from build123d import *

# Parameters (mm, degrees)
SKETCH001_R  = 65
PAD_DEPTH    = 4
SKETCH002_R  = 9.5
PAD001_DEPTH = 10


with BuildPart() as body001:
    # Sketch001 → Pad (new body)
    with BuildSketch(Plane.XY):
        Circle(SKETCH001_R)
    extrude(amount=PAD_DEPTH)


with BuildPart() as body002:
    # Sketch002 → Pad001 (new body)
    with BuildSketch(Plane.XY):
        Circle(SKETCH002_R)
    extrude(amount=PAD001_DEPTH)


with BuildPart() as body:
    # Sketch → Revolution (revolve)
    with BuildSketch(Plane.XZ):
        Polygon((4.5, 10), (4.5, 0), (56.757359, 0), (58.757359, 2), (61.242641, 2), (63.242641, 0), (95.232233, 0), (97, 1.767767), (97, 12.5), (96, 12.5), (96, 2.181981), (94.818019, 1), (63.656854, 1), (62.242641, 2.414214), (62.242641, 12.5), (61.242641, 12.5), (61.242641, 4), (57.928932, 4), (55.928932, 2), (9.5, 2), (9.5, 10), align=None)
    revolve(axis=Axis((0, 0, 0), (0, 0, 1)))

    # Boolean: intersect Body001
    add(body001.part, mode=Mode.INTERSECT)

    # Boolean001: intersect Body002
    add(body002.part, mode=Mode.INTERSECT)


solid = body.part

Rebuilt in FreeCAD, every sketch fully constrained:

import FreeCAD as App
import Part
import Sketcher

V = App.Vector
Q = App.Units.Quantity

doc = App.newDocument("Part")
params = doc.addObject("Spreadsheet::Sheet", "Params")
for row, (alias, value) in enumerate([
    ("sketch1_diameter", "130 mm"),
    ("pad1_length", "4 mm"),
    ("sketch2_diameter", "19 mm"),
    ("pad2_length", "10 mm"),
    ("sketch3_width", "1 mm"),
    ("sketch3_width2", "5 mm"),
    ("sketch3_height", "10 mm"),
    ("sketch3_height2", "8 mm"),
    ("sketch3_length", "2 mm"),
    ("revolution_angle", "360 deg"),
], start=1):
    params.set(f"A{row}", alias)
    params.set(f"B{row}", "=" + value)
    params.setAlias(f"B{row}", alias)

body = doc.addObject("PartDesign::Body", "Body")

# Sketch on XY plane
sketch1 = body.newObject("Sketcher::SketchObject", "Sketch")
sketch1.AttachmentSupport = (doc.getObject("XY_Plane"), [""])
sketch1.MapMode = "FlatFace"
sketch1.addGeometry(Part.Circle(V(0, 0, 0), V(0, 0, 1), 65), False)
sketch1.addConstraint(Sketcher.Constraint("Coincident", 0, 3, -1, 1))
sketch1.addConstraint(Sketcher.Constraint("Diameter", 0, Q("130 mm")))
sketch1.setExpression("Constraints[1]", "Params.sketch1_diameter")
pad1 = body.newObject("PartDesign::Pad", "Pad")
pad1.Profile = sketch1
pad1.setExpression("Length", "Params.pad1_length")
body2 = doc.addObject("PartDesign::Body", "Body001")

# Sketch on XY plane
sketch2 = body2.newObject("Sketcher::SketchObject", "Sketch001")
sketch2.AttachmentSupport = (doc.getObject("XY_Plane001"), [""])
sketch2.MapMode = "FlatFace"
sketch2.addGeometry(Part.Circle(V(0, 0, 0), V(0, 0, 1), 9.5), False)
sketch2.addConstraint(Sketcher.Constraint("Coincident", 0, 3, -1, 1))
sketch2.addConstraint(Sketcher.Constraint("Diameter", 0, Q("19 mm")))
sketch2.setExpression("Constraints[1]", "Params.sketch2_diameter")
pad2 = body2.newObject("PartDesign::Pad", "Pad001")
pad2.Profile = sketch2
pad2.setExpression("Length", "Params.pad2_length")
body3 = doc.addObject("PartDesign::Body", "Body002")

# Sketch on XZ plane
sketch3 = body3.newObject("Sketcher::SketchObject", "Sketch002")
sketch3.AttachmentSupport = (doc.getObject("XZ_Plane002"), [""])
sketch3.MapMode = "FlatFace"
sketch3.addGeometry(Part.LineSegment(V(4.5, 10, 0), V(4.5, 0, 0)), False)
sketch3.addGeometry(Part.LineSegment(V(4.5, 0, 0), V(56.757359, 0, 0)), False)
sketch3.addGeometry(Part.LineSegment(V(56.757359, 0, 0), V(58.757359, 2, 0)), False)
sketch3.addGeometry(Part.LineSegment(V(58.757359, 2, 0), V(61.242641, 2, 0)), False)
sketch3.addGeometry(Part.LineSegment(V(61.242641, 2, 0), V(63.242641, 0, 0)), False)
sketch3.addGeometry(Part.LineSegment(V(63.242641, 0, 0), V(95.232233, 0, 0)), False)
sketch3.addGeometry(Part.LineSegment(V(95.232233, 0, 0), V(97, 1.767767, 0)), False)
sketch3.addGeometry(Part.LineSegment(V(97, 1.767767, 0), V(97, 12.5, 0)), False)
sketch3.addGeometry(Part.LineSegment(V(97, 12.5, 0), V(96, 12.5, 0)), False)
sketch3.addGeometry(Part.LineSegment(V(96, 12.5, 0), V(96, 2.181981, 0)), False)
sketch3.addGeometry(Part.LineSegment(V(96, 2.181981, 0), V(94.818019, 1, 0)), False)
sketch3.addGeometry(Part.LineSegment(V(94.818019, 1, 0), V(63.656854, 1, 0)), False)
sketch3.addGeometry(Part.LineSegment(V(63.656854, 1, 0), V(62.242641, 2.414214, 0)), False)
sketch3.addGeometry(Part.LineSegment(V(62.242641, 2.414214, 0), V(62.242641, 12.5, 0)), False)
sketch3.addGeometry(Part.LineSegment(V(62.242641, 12.5, 0), V(61.242641, 12.5, 0)), False)
sketch3.addGeometry(Part.LineSegment(V(61.242641, 12.5, 0), V(61.242641, 4, 0)), False)
sketch3.addGeometry(Part.LineSegment(V(61.242641, 4, 0), V(57.928932, 4, 0)), False)
sketch3.addGeometry(Part.LineSegment(V(57.928932, 4, 0), V(55.928932, 2, 0)), False)
sketch3.addGeometry(Part.LineSegment(V(55.928932, 2, 0), V(9.5, 2, 0)), False)
sketch3.addGeometry(Part.LineSegment(V(9.5, 2, 0), V(9.5, 10, 0)), False)
sketch3.addGeometry(Part.LineSegment(V(9.5, 10, 0), V(4.5, 10, 0)), False)
sketch3.addConstraint(Sketcher.Constraint("Coincident", 0, 2, 1, 1))
sketch3.addConstraint(Sketcher.Constraint("Coincident", 1, 2, 2, 1))
sketch3.addConstraint(Sketcher.Constraint("Coincident", 2, 2, 3, 1))
sketch3.addConstraint(Sketcher.Constraint("Coincident", 3, 2, 4, 1))
sketch3.addConstraint(Sketcher.Constraint("Coincident", 4, 2, 5, 1))
sketch3.addConstraint(Sketcher.Constraint("Coincident", 5, 2, 6, 1))
sketch3.addConstraint(Sketcher.Constraint("Coincident", 6, 2, 7, 1))
sketch3.addConstraint(Sketcher.Constraint("Coincident", 7, 2, 8, 1))
sketch3.addConstraint(Sketcher.Constraint("Coincident", 8, 2, 9, 1))
sketch3.addConstraint(Sketcher.Constraint("Coincident", 9, 2, 10, 1))
sketch3.addConstraint(Sketcher.Constraint("Coincident", 10, 2, 11, 1))
sketch3.addConstraint(Sketcher.Constraint("Coincident", 11, 2, 12, 1))
sketch3.addConstraint(Sketcher.Constraint("Coincident", 12, 2, 13, 1))
sketch3.addConstraint(Sketcher.Constraint("Coincident", 13, 2, 14, 1))
sketch3.addConstraint(Sketcher.Constraint("Coincident", 14, 2, 15, 1))
sketch3.addConstraint(Sketcher.Constraint("Coincident", 15, 2, 16, 1))
sketch3.addConstraint(Sketcher.Constraint("Coincident", 16, 2, 17, 1))
sketch3.addConstraint(Sketcher.Constraint("Coincident", 17, 2, 18, 1))
sketch3.addConstraint(Sketcher.Constraint("Coincident", 18, 2, 19, 1))
sketch3.addConstraint(Sketcher.Constraint("Coincident", 19, 2, 20, 1))
sketch3.addConstraint(Sketcher.Constraint("Coincident", 20, 2, 0, 1))
sketch3.addConstraint(Sketcher.Constraint("Vertical", 0))
sketch3.addConstraint(Sketcher.Constraint("Horizontal", 1))
sketch3.addConstraint(Sketcher.Constraint("Horizontal", 3))
sketch3.addConstraint(Sketcher.Constraint("Horizontal", 5))
sketch3.addConstraint(Sketcher.Constraint("Vertical", 7))
sketch3.addConstraint(Sketcher.Constraint("Horizontal", 8))
sketch3.addConstraint(Sketcher.Constraint("Vertical", 9))
sketch3.addConstraint(Sketcher.Constraint("Horizontal", 11))
sketch3.addConstraint(Sketcher.Constraint("Vertical", 13))
sketch3.addConstraint(Sketcher.Constraint("Horizontal", 14))
sketch3.addConstraint(Sketcher.Constraint("Vertical", 15))
sketch3.addConstraint(Sketcher.Constraint("Horizontal", 16))
sketch3.addConstraint(Sketcher.Constraint("Horizontal", 18))
sketch3.addConstraint(Sketcher.Constraint("Vertical", 19))
sketch3.addConstraint(Sketcher.Constraint("Horizontal", 20))
sketch3.addConstraint(Sketcher.Constraint("PointOnObject", 0, 2, -1))
sketch3.addConstraint(Sketcher.Constraint("PointOnObject", 4, 2, -1))
sketch3.addConstraint(Sketcher.Constraint("Perpendicular", 2, 4))
sketch3.addConstraint(Sketcher.Constraint("Perpendicular", 4, 6))
sketch3.addConstraint(Sketcher.Constraint("Parallel", 6, 10))
sketch3.addConstraint(Sketcher.Constraint("Perpendicular", 10, 12))
sketch3.addConstraint(Sketcher.Constraint("Perpendicular", 12, 17))
sketch3.addConstraint(Sketcher.Constraint("Horizontal", 8, 2, 13, 2))
sketch3.addConstraint(Sketcher.Constraint("Horizontal", 3, 2, 17, 2))
sketch3.addConstraint(Sketcher.Constraint("Vertical", 3, 2, 14, 2))
sketch3.addConstraint(Sketcher.Constraint("Equal", 8, 14))
sketch3.addConstraint(Sketcher.Constraint("Equal", 2, 4))
sketch3.addConstraint(Sketcher.Constraint("Equal", 4, 17))
sketch3.addConstraint(Sketcher.Constraint("DistanceX", 8, 2, 8, 1, Q("1 mm")))
sketch3.addConstraint(Sketcher.Constraint("DistanceX", 20, 2, 20, 1, Q("5 mm")))
sketch3.addConstraint(Sketcher.Constraint("DistanceY", 0, 2, 0, 1, Q("10 mm")))
sketch3.addConstraint(Sketcher.Constraint("DistanceY", 19, 1, 19, 2, Q("8 mm")))
sketch3.addConstraint(Sketcher.Constraint("Distance", 12, Q("2 mm")))
sketch3.addConstraint(Sketcher.Constraint("DistanceY", 15, 2, 15, 1, Q("8.5 mm")))
sketch3.addConstraint(Sketcher.Constraint("DistanceX", -1, 1, 6, 2, Q("97 mm")))
sketch3.addConstraint(Sketcher.Constraint("DistanceY", -1, 1, 10, 2, Q("1 mm")))
sketch3.addConstraint(Sketcher.Constraint("Distance", 6, Q("2.5 mm")))
sketch3.addConstraint(Sketcher.Constraint("DistanceX", -1, 1, 0, 2, Q("4.5 mm")))
sketch3.addConstraint(Sketcher.Constraint("DistanceX", 1, 1, 1, 2, Q("52.257359 mm")))
sketch3.addConstraint(Sketcher.Constraint("DistanceX", 3, 1, 3, 2, Q("2.485282 mm")))
sketch3.addConstraint(Sketcher.Constraint("DistanceX", 16, 2, 16, 1, Q("3.313709 mm")))
sketch3.addConstraint(Sketcher.Constraint("DistanceY", 9, 2, 9, 1, Q("10.318019 mm")))
sketch3.setExpression("Constraints[49]", "Params.sketch3_width")
sketch3.setExpression("Constraints[50]", "Params.sketch3_width2")
sketch3.setExpression("Constraints[51]", "Params.sketch3_height")
sketch3.setExpression("Constraints[52]", "Params.sketch3_height2")
sketch3.setExpression("Constraints[53]", "Params.sketch3_length")
revolution = body3.newObject("PartDesign::Revolution", "Revolution")
revolution.Profile = sketch3
revolution.ReferenceAxis = (sketch3, ["V_Axis"])
revolution.setExpression("Angle", "Params.revolution_angle")
doc.recompute()

boolean = body3.newObject("PartDesign::Boolean", "Boolean")
boolean.Type = "Common"
boolean.addObjects([body])
doc.recompute()

boolean2 = body3.newObject("PartDesign::Boolean", "Boolean001")
boolean2.Type = "Common"
boolean2.addObjects([body2])

doc.recompute()
